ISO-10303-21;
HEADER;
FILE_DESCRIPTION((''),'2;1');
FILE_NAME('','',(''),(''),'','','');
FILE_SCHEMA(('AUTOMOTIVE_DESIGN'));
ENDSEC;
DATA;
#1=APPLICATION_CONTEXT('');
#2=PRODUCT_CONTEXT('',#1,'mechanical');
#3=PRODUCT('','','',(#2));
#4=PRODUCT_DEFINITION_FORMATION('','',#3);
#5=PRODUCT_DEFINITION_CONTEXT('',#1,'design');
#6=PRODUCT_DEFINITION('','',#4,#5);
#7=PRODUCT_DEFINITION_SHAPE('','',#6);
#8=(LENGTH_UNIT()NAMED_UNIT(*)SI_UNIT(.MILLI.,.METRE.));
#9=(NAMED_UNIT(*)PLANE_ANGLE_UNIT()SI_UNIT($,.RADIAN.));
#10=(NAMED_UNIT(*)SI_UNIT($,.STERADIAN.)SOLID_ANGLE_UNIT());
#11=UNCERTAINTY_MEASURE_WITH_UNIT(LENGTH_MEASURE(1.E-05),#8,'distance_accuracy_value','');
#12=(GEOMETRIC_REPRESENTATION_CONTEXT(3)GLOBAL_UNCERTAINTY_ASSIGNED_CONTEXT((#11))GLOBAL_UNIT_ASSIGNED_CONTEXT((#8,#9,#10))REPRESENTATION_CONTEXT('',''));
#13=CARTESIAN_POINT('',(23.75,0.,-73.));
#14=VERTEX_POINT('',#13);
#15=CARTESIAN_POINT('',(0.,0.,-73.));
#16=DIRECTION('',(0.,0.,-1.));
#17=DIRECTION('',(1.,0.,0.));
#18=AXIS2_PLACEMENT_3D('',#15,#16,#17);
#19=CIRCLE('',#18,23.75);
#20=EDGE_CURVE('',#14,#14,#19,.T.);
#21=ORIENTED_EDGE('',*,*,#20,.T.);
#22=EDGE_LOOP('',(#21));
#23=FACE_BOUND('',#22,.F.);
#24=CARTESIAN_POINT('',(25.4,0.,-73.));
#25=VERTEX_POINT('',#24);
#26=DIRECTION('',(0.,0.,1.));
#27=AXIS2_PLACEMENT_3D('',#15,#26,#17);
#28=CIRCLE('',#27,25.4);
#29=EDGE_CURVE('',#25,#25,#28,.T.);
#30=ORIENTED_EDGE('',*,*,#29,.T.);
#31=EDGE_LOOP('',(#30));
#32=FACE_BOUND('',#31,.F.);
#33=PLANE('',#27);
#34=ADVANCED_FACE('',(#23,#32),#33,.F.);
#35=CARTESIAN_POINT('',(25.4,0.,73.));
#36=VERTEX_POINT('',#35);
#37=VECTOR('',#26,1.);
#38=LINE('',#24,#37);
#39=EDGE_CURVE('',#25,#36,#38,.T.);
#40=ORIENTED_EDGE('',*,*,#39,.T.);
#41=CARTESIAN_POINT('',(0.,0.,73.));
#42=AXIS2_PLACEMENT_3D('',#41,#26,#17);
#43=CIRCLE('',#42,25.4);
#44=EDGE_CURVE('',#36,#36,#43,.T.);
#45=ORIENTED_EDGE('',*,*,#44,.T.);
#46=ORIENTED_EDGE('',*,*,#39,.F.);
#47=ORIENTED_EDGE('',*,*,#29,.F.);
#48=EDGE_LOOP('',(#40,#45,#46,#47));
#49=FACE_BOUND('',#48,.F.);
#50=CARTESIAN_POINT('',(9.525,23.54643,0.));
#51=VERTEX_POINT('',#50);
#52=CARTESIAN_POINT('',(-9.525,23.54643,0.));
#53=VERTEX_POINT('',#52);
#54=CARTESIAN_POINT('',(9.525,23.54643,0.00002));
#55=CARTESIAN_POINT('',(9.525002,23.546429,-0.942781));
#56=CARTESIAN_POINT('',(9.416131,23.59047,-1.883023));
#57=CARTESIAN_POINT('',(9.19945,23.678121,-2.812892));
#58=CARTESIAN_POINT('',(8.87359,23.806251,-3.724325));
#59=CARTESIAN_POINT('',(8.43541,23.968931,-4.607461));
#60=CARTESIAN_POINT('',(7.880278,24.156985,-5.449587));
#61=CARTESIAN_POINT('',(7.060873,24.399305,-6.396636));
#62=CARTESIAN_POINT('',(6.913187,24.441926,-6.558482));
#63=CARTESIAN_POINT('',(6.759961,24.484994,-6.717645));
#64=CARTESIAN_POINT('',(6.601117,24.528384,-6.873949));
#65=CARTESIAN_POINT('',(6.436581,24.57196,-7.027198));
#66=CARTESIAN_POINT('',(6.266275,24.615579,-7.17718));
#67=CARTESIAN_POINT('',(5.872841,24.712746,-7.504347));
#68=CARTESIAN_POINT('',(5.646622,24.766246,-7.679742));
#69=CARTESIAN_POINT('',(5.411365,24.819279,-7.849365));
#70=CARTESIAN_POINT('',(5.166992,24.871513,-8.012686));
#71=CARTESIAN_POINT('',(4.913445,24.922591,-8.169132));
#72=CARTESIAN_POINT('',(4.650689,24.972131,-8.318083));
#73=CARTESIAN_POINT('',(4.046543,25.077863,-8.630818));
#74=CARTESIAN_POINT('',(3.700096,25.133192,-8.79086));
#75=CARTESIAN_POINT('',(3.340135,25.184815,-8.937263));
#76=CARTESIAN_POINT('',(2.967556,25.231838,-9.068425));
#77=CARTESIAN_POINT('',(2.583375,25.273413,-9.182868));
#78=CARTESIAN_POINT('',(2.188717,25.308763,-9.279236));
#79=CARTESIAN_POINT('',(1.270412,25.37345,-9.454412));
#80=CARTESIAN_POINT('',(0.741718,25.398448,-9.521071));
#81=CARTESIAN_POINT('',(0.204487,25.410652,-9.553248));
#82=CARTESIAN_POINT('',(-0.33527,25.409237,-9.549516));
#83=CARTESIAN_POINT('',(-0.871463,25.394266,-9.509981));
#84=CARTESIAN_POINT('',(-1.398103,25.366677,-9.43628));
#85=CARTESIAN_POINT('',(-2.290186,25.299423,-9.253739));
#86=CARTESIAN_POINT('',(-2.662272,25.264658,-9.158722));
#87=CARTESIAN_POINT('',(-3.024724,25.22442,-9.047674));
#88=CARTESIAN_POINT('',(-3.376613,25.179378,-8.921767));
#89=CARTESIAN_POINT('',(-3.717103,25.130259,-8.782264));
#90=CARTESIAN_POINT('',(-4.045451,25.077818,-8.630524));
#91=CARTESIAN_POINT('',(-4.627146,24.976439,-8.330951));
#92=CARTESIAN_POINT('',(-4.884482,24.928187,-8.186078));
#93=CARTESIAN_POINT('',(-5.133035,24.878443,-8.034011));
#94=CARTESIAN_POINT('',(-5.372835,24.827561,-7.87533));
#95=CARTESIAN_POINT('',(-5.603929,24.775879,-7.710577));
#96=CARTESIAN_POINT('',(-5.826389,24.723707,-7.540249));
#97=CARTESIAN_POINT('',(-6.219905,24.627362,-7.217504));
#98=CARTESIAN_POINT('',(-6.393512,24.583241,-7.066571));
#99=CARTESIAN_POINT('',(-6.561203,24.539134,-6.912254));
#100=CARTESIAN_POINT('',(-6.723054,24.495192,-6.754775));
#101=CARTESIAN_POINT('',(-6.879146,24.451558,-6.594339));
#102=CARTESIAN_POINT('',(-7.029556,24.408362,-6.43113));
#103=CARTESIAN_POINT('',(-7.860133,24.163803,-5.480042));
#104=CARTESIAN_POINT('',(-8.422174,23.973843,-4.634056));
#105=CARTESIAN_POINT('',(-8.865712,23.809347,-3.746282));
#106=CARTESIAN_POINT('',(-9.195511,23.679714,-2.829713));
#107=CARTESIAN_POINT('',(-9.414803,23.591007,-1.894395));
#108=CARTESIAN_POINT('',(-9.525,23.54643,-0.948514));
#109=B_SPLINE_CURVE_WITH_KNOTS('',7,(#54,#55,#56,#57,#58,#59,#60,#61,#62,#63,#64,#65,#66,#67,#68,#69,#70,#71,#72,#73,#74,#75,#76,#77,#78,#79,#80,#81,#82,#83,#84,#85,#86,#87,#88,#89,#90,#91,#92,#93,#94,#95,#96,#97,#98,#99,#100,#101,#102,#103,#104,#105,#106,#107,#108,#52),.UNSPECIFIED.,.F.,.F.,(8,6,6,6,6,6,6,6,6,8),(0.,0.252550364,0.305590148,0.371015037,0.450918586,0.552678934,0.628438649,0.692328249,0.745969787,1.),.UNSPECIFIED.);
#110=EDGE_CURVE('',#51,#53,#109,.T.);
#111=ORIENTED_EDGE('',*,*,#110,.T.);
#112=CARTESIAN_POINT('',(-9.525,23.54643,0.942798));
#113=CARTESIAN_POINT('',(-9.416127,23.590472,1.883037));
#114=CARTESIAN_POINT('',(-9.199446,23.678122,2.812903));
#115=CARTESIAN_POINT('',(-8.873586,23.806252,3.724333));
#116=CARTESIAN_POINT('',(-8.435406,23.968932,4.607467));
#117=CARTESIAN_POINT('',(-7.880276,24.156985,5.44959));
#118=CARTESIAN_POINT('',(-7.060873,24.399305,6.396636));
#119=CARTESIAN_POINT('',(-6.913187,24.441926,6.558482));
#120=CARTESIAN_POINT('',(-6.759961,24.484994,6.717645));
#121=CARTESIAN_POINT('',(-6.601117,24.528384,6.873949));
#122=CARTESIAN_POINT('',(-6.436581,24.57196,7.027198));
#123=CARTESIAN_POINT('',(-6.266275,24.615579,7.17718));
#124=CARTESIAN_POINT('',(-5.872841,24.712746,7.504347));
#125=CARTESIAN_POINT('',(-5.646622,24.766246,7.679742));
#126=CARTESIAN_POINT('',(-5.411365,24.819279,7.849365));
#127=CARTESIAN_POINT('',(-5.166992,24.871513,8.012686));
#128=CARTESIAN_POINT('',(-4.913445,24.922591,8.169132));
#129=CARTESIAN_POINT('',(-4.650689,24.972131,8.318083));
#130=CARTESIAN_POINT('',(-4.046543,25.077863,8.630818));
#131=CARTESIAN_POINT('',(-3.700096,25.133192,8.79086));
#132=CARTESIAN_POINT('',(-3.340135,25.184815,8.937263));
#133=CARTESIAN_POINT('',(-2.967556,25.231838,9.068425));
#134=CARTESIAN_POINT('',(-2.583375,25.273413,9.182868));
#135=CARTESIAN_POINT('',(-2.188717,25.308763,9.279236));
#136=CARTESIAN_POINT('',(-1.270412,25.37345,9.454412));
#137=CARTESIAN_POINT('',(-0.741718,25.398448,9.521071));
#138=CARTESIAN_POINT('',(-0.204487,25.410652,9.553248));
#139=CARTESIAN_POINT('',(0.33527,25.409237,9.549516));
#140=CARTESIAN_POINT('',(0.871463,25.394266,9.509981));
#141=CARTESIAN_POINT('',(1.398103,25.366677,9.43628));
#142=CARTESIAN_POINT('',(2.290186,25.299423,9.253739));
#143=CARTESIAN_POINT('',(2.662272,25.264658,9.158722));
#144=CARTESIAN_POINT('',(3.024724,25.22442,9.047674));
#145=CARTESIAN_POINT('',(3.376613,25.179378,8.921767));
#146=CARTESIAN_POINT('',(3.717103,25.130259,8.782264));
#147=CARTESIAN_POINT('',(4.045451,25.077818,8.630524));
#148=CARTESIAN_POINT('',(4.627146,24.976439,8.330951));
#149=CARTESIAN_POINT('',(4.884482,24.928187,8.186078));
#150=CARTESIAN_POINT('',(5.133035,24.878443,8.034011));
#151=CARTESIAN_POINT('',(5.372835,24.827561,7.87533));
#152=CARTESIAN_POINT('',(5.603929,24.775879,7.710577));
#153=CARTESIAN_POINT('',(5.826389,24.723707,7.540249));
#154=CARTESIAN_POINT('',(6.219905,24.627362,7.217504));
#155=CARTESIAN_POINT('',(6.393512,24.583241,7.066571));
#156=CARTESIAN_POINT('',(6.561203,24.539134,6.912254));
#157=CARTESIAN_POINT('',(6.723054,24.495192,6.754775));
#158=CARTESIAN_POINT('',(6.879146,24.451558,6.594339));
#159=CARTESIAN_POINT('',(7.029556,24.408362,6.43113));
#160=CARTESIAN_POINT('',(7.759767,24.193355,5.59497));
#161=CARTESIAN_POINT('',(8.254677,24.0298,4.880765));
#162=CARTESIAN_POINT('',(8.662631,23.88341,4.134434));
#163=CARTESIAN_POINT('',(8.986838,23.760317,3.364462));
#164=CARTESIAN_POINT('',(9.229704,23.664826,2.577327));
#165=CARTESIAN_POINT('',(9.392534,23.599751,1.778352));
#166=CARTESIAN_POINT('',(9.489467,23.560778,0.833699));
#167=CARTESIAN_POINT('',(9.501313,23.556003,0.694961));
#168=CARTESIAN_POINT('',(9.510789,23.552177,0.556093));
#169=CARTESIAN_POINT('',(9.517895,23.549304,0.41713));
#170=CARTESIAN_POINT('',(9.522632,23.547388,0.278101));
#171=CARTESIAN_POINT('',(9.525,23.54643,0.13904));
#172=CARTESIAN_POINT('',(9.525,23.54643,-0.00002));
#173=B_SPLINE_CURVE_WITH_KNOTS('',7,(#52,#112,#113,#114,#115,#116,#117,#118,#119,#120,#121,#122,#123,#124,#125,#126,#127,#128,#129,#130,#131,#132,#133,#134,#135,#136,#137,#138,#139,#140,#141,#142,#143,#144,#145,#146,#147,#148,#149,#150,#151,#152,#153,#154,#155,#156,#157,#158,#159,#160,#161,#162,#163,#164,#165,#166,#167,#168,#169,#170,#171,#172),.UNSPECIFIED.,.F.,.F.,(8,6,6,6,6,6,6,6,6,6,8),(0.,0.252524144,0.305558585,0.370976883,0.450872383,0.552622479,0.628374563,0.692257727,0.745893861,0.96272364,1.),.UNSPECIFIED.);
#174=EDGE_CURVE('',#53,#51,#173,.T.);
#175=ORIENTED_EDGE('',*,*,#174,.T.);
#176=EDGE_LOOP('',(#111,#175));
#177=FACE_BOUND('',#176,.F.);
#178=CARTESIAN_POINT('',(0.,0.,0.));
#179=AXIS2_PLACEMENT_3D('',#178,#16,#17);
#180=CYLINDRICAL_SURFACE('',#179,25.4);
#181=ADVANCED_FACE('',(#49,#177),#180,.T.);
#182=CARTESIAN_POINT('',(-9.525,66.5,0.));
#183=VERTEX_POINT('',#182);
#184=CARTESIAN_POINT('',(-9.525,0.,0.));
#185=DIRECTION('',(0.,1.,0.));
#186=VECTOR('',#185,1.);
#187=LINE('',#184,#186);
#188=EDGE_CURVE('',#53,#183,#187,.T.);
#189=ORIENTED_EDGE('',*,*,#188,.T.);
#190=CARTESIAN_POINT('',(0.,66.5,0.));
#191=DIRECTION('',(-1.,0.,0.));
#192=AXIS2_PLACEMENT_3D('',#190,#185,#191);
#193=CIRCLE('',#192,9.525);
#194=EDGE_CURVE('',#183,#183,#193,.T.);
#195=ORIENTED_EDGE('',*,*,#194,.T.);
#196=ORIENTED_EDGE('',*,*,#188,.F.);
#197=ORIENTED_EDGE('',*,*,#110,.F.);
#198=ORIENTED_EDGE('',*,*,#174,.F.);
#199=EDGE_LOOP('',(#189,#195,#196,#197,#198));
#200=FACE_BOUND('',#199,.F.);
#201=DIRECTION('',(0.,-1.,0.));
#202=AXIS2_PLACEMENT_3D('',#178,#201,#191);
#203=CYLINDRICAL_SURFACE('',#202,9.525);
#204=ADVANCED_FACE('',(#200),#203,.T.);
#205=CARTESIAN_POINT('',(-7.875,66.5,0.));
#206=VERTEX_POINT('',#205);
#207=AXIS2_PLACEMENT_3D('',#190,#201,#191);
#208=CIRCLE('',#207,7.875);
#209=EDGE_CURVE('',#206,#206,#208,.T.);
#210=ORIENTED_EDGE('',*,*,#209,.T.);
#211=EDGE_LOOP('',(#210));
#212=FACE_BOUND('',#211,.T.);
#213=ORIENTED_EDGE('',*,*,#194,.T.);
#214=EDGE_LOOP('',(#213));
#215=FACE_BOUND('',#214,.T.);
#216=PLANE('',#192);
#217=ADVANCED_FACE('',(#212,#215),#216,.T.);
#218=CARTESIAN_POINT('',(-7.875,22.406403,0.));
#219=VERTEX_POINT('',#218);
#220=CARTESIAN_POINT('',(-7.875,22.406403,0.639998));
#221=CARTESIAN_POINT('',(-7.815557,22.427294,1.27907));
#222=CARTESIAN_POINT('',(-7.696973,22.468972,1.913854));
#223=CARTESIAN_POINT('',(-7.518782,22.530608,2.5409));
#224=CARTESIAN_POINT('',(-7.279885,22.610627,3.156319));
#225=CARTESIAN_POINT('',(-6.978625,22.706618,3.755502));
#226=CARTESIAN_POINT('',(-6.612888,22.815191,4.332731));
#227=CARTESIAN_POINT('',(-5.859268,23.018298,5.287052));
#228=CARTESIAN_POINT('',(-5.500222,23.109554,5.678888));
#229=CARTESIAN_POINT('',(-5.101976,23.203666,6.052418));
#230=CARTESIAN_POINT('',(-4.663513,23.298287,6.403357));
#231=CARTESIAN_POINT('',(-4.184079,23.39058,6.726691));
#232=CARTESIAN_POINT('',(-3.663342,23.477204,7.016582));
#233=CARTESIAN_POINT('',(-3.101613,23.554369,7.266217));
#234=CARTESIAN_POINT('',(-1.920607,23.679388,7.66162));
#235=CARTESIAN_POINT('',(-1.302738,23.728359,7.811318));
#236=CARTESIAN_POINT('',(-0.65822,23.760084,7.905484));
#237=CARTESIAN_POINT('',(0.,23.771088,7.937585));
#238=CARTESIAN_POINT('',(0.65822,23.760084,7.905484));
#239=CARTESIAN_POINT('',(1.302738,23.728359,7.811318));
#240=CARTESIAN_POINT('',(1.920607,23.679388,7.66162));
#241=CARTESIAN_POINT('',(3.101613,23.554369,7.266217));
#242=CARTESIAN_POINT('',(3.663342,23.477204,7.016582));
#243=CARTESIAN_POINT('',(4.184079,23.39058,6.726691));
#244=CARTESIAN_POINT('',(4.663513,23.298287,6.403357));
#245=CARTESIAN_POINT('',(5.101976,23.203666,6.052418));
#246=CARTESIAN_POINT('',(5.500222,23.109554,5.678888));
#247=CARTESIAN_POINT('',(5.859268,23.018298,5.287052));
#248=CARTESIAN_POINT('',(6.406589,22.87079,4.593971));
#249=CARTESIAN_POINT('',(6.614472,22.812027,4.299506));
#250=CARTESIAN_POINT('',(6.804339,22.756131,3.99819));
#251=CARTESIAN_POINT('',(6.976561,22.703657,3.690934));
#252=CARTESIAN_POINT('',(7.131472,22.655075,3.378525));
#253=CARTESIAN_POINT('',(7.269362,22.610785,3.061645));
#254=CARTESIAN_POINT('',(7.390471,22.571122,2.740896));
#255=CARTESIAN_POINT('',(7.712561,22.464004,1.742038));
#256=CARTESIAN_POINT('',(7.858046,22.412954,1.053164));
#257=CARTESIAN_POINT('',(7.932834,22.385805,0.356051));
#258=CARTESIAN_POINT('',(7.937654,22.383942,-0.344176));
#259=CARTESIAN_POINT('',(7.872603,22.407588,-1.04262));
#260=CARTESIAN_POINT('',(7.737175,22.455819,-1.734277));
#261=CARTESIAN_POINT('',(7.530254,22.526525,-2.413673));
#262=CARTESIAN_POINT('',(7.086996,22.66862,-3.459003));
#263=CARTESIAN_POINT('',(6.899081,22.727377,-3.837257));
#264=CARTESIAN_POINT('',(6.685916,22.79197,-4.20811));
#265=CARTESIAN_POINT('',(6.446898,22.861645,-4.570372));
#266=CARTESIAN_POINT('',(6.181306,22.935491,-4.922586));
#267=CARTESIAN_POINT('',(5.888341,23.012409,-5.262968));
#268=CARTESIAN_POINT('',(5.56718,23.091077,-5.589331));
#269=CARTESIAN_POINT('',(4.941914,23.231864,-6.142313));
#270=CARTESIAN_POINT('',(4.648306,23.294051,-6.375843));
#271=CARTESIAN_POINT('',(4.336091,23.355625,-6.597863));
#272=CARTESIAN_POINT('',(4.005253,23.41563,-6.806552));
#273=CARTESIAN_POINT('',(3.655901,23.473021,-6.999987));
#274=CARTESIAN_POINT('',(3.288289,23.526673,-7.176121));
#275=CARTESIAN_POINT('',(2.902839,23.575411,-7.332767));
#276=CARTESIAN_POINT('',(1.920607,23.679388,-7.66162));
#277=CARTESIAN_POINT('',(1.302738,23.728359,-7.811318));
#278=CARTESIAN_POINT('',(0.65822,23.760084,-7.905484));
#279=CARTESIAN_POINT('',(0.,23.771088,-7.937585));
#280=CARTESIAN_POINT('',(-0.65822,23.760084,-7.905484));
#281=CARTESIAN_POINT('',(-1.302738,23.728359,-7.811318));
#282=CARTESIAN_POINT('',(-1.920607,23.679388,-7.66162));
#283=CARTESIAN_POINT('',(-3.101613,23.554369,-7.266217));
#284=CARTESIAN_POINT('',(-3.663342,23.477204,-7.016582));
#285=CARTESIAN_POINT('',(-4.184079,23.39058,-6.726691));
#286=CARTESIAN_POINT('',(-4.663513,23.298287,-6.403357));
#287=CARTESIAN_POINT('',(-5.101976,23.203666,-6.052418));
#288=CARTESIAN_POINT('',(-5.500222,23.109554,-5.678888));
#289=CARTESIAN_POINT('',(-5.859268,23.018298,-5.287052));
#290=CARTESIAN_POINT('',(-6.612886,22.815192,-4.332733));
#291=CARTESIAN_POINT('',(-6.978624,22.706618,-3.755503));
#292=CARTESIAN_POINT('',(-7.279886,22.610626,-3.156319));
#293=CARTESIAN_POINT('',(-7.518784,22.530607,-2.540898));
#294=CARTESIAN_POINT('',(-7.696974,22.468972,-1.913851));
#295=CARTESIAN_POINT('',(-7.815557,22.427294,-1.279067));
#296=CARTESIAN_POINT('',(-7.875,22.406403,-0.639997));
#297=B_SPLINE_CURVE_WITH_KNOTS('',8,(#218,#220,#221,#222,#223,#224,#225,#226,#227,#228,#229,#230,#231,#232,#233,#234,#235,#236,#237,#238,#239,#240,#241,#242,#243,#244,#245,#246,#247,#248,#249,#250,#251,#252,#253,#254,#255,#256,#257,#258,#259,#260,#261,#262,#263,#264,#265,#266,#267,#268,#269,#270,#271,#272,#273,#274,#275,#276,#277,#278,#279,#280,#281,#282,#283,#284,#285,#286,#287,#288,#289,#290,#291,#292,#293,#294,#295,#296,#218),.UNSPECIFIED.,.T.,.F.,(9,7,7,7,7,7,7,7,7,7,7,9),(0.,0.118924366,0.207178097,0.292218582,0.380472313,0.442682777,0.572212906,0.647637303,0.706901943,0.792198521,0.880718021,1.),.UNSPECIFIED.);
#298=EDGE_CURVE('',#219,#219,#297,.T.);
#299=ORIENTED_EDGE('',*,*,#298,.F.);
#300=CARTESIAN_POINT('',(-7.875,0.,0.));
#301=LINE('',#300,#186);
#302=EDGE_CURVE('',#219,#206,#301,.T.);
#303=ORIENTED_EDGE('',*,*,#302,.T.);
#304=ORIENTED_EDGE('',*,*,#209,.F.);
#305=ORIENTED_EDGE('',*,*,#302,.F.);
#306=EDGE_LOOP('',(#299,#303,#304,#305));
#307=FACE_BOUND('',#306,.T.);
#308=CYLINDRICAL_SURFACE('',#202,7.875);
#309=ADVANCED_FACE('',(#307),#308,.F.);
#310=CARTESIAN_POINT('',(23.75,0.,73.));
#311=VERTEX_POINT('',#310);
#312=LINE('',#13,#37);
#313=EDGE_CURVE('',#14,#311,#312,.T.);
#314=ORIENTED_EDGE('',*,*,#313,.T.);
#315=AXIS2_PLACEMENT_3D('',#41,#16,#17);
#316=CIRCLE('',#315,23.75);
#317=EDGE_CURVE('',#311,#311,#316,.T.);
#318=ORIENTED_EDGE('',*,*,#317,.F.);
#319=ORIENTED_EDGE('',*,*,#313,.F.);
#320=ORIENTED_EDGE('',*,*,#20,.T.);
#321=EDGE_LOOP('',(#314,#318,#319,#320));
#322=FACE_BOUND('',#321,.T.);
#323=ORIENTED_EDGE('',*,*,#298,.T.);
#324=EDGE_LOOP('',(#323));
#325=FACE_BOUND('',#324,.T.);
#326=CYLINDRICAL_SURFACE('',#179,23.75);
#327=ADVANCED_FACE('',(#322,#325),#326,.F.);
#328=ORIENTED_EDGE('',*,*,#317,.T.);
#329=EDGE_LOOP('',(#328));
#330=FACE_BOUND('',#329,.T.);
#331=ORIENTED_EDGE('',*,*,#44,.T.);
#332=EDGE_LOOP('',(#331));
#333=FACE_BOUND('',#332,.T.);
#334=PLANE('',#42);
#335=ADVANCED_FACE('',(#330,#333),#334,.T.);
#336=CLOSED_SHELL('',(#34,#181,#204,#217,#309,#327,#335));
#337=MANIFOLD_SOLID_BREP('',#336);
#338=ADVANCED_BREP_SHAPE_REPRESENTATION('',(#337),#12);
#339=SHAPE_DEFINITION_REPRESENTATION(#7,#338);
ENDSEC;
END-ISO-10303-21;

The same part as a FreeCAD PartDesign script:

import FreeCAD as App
import Part
import Sketcher
Q = App.Units.Quantity


def faces_at(feature, points):
    """Names of the faces that lie closest to the given points."""
    faces = feature.Shape.Faces
    near = lambda p: min(range(len(faces)), key=lambda i: faces[i].distToShape(Part.Vertex(*p))[0])
    return sorted({f"Face{near(p) + 1}" for p in points})

doc = App.newDocument("Part")
body = doc.addObject("PartDesign::Body", "Body")

# Sketch on XY plane
sketch1 = body.newObject("Sketcher::SketchObject", "Sketch")
sketch1.AttachmentSupport = (doc.getObject("XY_Plane"), [""])
sketch1.MapMode = "FlatFace"
sketch1.addGeometry(Part.Circle(App.Vector(0, 0, 0), App.Vector(0, 0, 1), 25), False)
sketch1.addConstraint([
    Sketcher.Constraint("Coincident", 0, 3, -1, 1),
    Sketcher.Constraint("Diameter", 0, Q("2 in")),
])
pad1 = body.newObject("PartDesign::Pad", "Pad")
pad1.Profile = sketch1
pad1.Length = 146
pad1.Midplane = True

# Sketch on XZ plane
sketch2 = body.newObject("Sketcher::SketchObject", "Sketch001")
sketch2.AttachmentSupport = (doc.getObject("XZ_Plane"), [""])
sketch2.MapMode = "FlatFace"
sketch2.addGeometry(Part.Circle(App.Vector(0, 0, 0), App.Vector(0, 0, 1), 10), False)
sketch2.addConstraint([
    Sketcher.Constraint("Coincident", 0, 3, -1, 1),
    Sketcher.Constraint("Diameter", 0, Q("0.75 in")),
])
pad2 = body.newObject("PartDesign::Pad", "Pad001")
pad2.Profile = sketch2
pad2.Length = Q("2.6181102 in")
pad2.Reversed = True
doc.recompute()

thickness = body.newObject("PartDesign::Thickness", "Thickness")
thickness.Base = (pad2, faces_at(pad2, [(2.811, 66.5, 0.044), (-7.251, -1.909, 73), (-7.251, -1.909, -73)]))
thickness.Value = 1.65
thickness.Reversed = True
thickness.Join = "Intersection"

doc.recompute()
